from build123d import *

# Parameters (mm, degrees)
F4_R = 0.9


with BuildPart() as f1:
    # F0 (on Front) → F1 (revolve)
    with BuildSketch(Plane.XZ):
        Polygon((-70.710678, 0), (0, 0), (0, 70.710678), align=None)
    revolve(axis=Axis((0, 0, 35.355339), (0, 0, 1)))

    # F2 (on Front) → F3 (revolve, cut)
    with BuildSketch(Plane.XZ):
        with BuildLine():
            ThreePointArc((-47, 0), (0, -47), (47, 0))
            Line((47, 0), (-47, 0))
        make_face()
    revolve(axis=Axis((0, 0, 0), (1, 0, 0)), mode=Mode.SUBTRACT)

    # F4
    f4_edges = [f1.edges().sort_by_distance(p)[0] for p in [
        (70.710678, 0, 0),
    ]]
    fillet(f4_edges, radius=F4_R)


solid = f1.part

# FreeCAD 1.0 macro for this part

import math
import FreeCAD as App
import Part
import Sketcher

V = App.Vector
Q = App.Units.Quantity


def edges_at(feature, points):
    """Names of the edges that pass closest to the given points."""
    edges = feature.Shape.Edges
    near = lambda p: min(range(len(edges)), key=lambda i: edges[i].distToShape(Part.Vertex(*p))[0])
    return sorted({f"Edge{near(p) + 1}" for p in points})


def add_polygon(sketch, points):
    """Adds a closed chain of lines whose ends are joined by coincident constraints."""
    first, n = sketch.GeometryCount, len(points)
    for a, b in zip(points, points[1:] + points[:1]):
        sketch.addGeometry(Part.LineSegment(App.Vector(*a, 0), App.Vector(*b, 0)), False)
    for i in range(n):
        sketch.addConstraint(Sketcher.Constraint("Coincident", first + i, 2, first + (i + 1) % n, 1))

doc = App.newDocument("Part")
body = doc.addObject("PartDesign::Body", "Body")

sketch1 = doc.addObject("Sketcher::SketchObject", "Sketch")
body.addObject(sketch1)
sketch1.AttachmentSupport = (doc.XZ_Plane, [""])
sketch1.MapMode = "FlatFace"
add_polygon(sketch1, [(-71, 0), (0, 0), (0, 71)])
sketch1.addConstraint([
    Sketcher.Constraint("Horizontal", 0),
    Sketcher.Constraint("Vertical", 1),
    Sketcher.Constraint("Coincident", 0, 2, -1, 1),
    Sketcher.Constraint("Equal", 0, 1),
    Sketcher.Constraint("Distance", 2, Q("100 mm")),
])
revolution = doc.addObject("PartDesign::Revolution", "Revolution")
body.addObject(revolution)
revolution.Profile = sketch1
revolution.ReferenceAxis = (sketch1, ["V_Axis"])
revolution.Angle = 360

sketch2 = doc.addObject("Sketcher::SketchObject", "Sketch001")
body.addObject(sketch2)
sketch2.AttachmentSupport = (doc.XZ_Plane, [""])
sketch2.MapMode = "FlatFace"
sketch2.addGeometry([
    Part.ArcOfCircle(Part.Circle(V(0, 0, 0), V(0, 0, 1), 47), math.radians(180), math.radians(360)),
    Part.LineSegment(V(47, 0, 0), V(-47, 0, 0)),
], False)
sketch2.addConstraint([
    Sketcher.Constraint("Coincident", 0, 1, 1, 2),
    Sketcher.Constraint("Coincident", 1, 1, 0, 2),
    Sketcher.Constraint("Horizontal", 1),
    Sketcher.Constraint("Coincident", 0, 3, -1, 1),
    Sketcher.Constraint("PointOnObject", 0, 1, -1),
    Sketcher.Constraint("Radius", 0, Q("47 mm")),
])
groove = doc.addObject("PartDesign::Groove", "Groove")
body.addObject(groove)
groove.Profile = sketch2
groove.ReferenceAxis = (sketch2, ["H_Axis"])
groove.Angle = 360
doc.recompute()

fillet = doc.addObject("PartDesign::Fillet", "Fillet")
body.addObject(fillet)
fillet.Base = (groove, edges_at(groove, [(70.711, 0, 0)]))
fillet.Radius = 0.9

doc.recompute()
